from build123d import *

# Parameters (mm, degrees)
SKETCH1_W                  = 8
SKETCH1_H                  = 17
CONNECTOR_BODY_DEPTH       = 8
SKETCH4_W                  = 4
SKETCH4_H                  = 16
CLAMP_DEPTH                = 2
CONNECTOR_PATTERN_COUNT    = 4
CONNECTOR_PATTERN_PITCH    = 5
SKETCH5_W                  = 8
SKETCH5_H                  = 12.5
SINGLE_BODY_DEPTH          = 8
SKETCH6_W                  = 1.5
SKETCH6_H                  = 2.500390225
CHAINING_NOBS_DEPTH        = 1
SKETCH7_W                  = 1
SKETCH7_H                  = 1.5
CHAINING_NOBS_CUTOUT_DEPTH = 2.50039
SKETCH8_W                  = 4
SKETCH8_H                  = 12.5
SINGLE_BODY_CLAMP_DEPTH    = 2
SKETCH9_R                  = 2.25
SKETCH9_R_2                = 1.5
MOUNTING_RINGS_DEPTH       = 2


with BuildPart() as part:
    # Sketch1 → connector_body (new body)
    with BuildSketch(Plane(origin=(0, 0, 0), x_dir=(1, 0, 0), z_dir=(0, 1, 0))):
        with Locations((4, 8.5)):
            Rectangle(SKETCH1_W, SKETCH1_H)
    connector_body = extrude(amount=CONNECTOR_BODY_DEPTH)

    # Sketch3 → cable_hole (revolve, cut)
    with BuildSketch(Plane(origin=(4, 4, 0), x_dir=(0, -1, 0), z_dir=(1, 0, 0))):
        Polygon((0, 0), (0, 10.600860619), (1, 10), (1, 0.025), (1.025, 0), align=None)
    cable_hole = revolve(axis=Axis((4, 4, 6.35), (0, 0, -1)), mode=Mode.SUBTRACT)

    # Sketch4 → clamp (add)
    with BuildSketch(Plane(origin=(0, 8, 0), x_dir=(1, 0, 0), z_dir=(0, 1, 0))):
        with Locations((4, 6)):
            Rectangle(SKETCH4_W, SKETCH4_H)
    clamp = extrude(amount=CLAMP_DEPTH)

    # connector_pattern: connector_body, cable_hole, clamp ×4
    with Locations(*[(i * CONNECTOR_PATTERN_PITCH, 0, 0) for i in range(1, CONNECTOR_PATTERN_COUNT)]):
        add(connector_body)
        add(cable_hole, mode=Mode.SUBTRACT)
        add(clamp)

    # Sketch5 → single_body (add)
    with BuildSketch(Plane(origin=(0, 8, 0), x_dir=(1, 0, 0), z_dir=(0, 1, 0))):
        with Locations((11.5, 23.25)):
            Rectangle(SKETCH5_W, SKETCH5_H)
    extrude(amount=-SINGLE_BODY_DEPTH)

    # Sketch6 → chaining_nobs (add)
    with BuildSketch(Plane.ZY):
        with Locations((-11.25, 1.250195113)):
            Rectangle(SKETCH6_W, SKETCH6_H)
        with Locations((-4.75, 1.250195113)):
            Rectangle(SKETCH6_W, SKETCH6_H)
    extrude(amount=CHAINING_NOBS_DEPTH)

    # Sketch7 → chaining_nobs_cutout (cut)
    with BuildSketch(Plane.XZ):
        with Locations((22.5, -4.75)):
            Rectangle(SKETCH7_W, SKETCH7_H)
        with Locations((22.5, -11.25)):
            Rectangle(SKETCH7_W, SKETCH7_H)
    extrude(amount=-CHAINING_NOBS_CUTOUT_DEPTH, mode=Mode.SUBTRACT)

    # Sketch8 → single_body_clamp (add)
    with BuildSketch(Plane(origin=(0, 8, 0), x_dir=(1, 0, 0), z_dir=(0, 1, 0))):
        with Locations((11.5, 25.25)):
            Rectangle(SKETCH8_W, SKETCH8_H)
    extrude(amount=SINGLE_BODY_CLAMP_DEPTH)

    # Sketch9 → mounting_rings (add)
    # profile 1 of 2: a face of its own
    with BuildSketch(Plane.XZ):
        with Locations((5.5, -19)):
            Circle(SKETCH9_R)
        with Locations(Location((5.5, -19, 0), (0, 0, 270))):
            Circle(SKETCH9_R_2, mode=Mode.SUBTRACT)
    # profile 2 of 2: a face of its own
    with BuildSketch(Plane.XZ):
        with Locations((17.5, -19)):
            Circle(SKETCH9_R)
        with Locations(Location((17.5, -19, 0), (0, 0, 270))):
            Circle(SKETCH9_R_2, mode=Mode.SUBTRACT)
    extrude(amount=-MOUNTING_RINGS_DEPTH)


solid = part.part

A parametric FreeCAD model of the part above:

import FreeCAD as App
import Part
import Sketcher
from FreeCAD import Vector
Q = App.Units.Quantity

doc = App.newDocument("Part")
params = doc.addObject("Spreadsheet::Sheet", "Params")
for row, (alias, value) in enumerate([
    ("sketch1_width", "8 mm"),
    ("sketch1_height", "17 mm"),
    ("pad1_length", "8 mm"),
    ("groove_angle", "360 deg"),
    ("sketch3_width", "4 mm"),
    ("sketch3_height", "16 mm"),
    ("pad2_length", "2 mm"),
    ("linearpattern_pitch", "5 mm"),
    ("sketch4_width", "8 mm"),
    ("sketch4_height", "12.5 mm"),
    ("pad3_length", "8 mm"),
    ("sketch5_height", "1.5 mm"),
    ("pad4_length", "1 mm"),
    ("sketch6_width", "1 mm"),
    ("sketch6_height", "1.5 mm"),
    ("pocket1_length", "2.50039 mm"),
    ("sketch7_width", "4 mm"),
    ("sketch7_height", "12.5 mm"),
    ("pad5_length", "2 mm"),
    ("sketch8_diameter", "3 mm"),
    ("sketch8_diameter2", "4.5 mm"),
    ("pad6_length", "2 mm"),
], start=1):
    params.set(f"A{row}", alias)
    params.set(f"B{row}", "=" + value)
    params.setAlias(f"B{row}", alias)

body = doc.addObject("PartDesign::Body", "Body")

# Sketch on XZ plane
sketch1 = body.newObject("Sketcher::SketchObject", "Sketch")
sketch1.AttachmentSupport = (doc.getObject("XZ_Plane"), [""])
sketch1.MapMode = "FlatFace"
sketch1.addGeometry(Part.LineSegment(Vector(0, -17, 0), Vector(0, 0, 0)), False)
sketch1.addGeometry(Part.LineSegment(Vector(0, 0, 0), Vector(8, 0, 0)), False)
sketch1.addGeometry(Part.LineSegment(Vector(8, 0, 0), Vector(8, -17, 0)), False)
sketch1.addGeometry(Part.LineSegment(Vector(8, -17, 0), Vector(0, -17, 0)), False)
sketch1.addConstraint(Sketcher.Constraint("Coincident", 0, 2, 1, 1))
sketch1.addConstraint(Sketcher.Constraint("Coincident", 1, 2, 2, 1))
sketch1.addConstraint(Sketcher.Constraint("Coincident", 2, 2, 3, 1))
sketch1.addConstraint(Sketcher.Constraint("Coincident", 3, 2, 0, 1))
sketch1.addConstraint(Sketcher.Constraint("Vertical", 0))
sketch1.addConstraint(Sketcher.Constraint("Horizontal", 1))
sketch1.addConstraint(Sketcher.Constraint("Vertical", 2))
sketch1.addConstraint(Sketcher.Constraint("Horizontal", 3))
sketch1.addConstraint(Sketcher.Constraint("Coincident", 0, 2, -1, 1))
sketch1.addConstraint(Sketcher.Constraint("DistanceX", 1, 1, 1, 2, Q("8 mm")))
sketch1.addConstraint(Sketcher.Constraint("DistanceY", 0, 1, 0, 2, Q("17 mm")))
sketch1.setExpression("Constraints[9]", "Params.sketch1_width")
sketch1.setExpression("Constraints[10]", "Params.sketch1_height")
pad1 = body.newObject("PartDesign::Pad", "Pad")
pad1.Profile = sketch1
pad1.setExpression("Length", "Params.pad1_length")
pad1.Reversed = True

# Sketch on YZ plane
sketch2 = body.newObject("Sketcher::SketchObject", "Sketch001")
sketch2.AttachmentSupport = (doc.getObject("YZ_Plane"), [""])
sketch2.MapMode = "FlatFace"
sketch2.AttachmentOffset = App.Placement(Vector(0, 0, 4), App.Rotation())
sketch2.addGeometry(Part.LineSegment(Vector(4, -10.601, 0), Vector(4, 0, 0)), False)
sketch2.addGeometry(Part.LineSegment(Vector(4, 0, 0), Vector(2.975, 0, 0)), False)
sketch2.addGeometry(Part.LineSegment(Vector(2.975, 0, 0), Vector(3, -0.025, 0)), False)
sketch2.addGeometry(Part.LineSegment(Vector(3, -0.025, 0), Vector(3, -10, 0)), False)
sketch2.addGeometry(Part.LineSegment(Vector(3, -10, 0), Vector(4, -10.601, 0)), False)
sketch2.addGeometry(Part.LineSegment(Vector(4, 0, 0), Vector(4, -10.601, 0)), True)  # axis
sketch2.addConstraint(Sketcher.Constraint("Coincident", 0, 2, 1, 1))
sketch2.addConstraint(Sketcher.Constraint("Coincident", 1, 2, 2, 1))
sketch2.addConstraint(Sketcher.Constraint("Coincident", 2, 2, 3, 1))
sketch2.addConstraint(Sketcher.Constraint("Coincident", 3, 2, 4, 1))
sketch2.addConstraint(Sketcher.Constraint("Coincident", 4, 2, 0, 1))
sketch2.addConstraint(Sketcher.Constraint("Vertical", 0))
sketch2.addConstraint(Sketcher.Constraint("Horizontal", 1))
sketch2.addConstraint(Sketcher.Constraint("Vertical", 3))
sketch2.addConstraint(Sketcher.Constraint("Vertical", 5))
sketch2.addConstraint(Sketcher.Constraint("Coincident", 5, 1, 0, 2))
sketch2.addConstraint(Sketcher.Constraint("PointOnObject", 0, 2, -1))
sketch2.addConstraint(Sketcher.Constraint("Equal", 0, 5))
sketch2.addConstraint(Sketcher.Constraint("Angle", 2, Q("-45 deg")))
sketch2.addConstraint(Sketcher.Constraint("Angle", 4, Q("-31 deg")))
sketch2.addConstraint(Sketcher.Constraint("DistanceX", -1, 1, 0, 2, Q("4 mm")))
sketch2.addConstraint(Sketcher.Constraint("DistanceX", -1, 1, 2, 2, Q("3 mm")))
sketch2.addConstraint(Sketcher.Constraint("DistanceY", 3, 2, -1, 1, Q("10 mm")))
sketch2.addConstraint(Sketcher.Constraint("DistanceX", 1, 2, 1, 1, Q("1.025 mm")))
groove = body.newObject("PartDesign::Groove", "Groove")
groove.Profile = sketch2
groove.ReferenceAxis = (sketch2, ["Axis0"])
groove.setExpression("Angle", "Params.groove_angle")

# Sketch on XZ plane
sketch3 = body.newObject("Sketcher::SketchObject", "Sketch002")
sketch3.AttachmentSupport = (doc.getObject("XZ_Plane"), [""])
sketch3.MapMode = "FlatFace"
sketch3.AttachmentOffset = App.Placement(Vector(0, 0, -8), App.Rotation())
sketch3.addGeometry(Part.LineSegment(Vector(2, -14, 0), Vector(2, 2, 0)), False)
sketch3.addGeometry(Part.LineSegment(Vector(2, 2, 0), Vector(6, 2, 0)), False)
sketch3.addGeometry(Part.LineSegment(Vector(6, 2, 0), Vector(6, -14, 0)), False)
sketch3.addGeometry(Part.LineSegment(Vector(6, -14, 0), Vector(2, -14, 0)), False)
sketch3.addConstraint(Sketcher.Constraint("Coincident", 0, 2, 1, 1))
sketch3.addConstraint(Sketcher.Constraint("Coincident", 1, 2, 2, 1))
sketch3.addConstraint(Sketcher.Constraint("Coincident", 2, 2, 3, 1))
sketch3.addConstraint(Sketcher.Constraint("Coincident", 3, 2, 0, 1))
sketch3.addConstraint(Sketcher.Constraint("Vertical", 0))
sketch3.addConstraint(Sketcher.Constraint("Horizontal", 1))
sketch3.addConstraint(Sketcher.Constraint("Vertical", 2))
sketch3.addConstraint(Sketcher.Constraint("Horizontal", 3))
sketch3.addConstraint(Sketcher.Constraint("DistanceX", 1, 1, 1, 2, Q("4 mm")))
sketch3.addConstraint(Sketcher.Constraint("DistanceY", 0, 1, 0, 2, Q("16 mm")))
sketch3.addConstraint(Sketcher.Constraint("DistanceX", -1, 1, 0, 2, Q("2 mm")))
sketch3.addConstraint(Sketcher.Constraint("DistanceY", -1, 1, 0, 2, Q("2 mm")))
sketch3.setExpression("Constraints[8]", "Params.sketch3_width")
sketch3.setExpression("Constraints[9]", "Params.sketch3_height")
pad2 = body.newObject("PartDesign::Pad", "Pad001")
pad2.Profile = sketch3
pad2.setExpression("Length", "Params.pad2_length")
pad2.Reversed = True
doc.recompute()

linearpattern = body.newObject("PartDesign::LinearPattern", "LinearPattern")
linearpattern.Originals = [pad1, groove, pad2]
linearpattern.Direction = (doc.getObject("X_Axis"), [""])
linearpattern.Mode = "offset"
linearpattern.setExpression("Offset", "Params.linearpattern_pitch")
linearpattern.Occurrences = 4
body.Tip = linearpattern

# Sketch on XZ plane
sketch4 = body.newObject("Sketcher::SketchObject", "Sketch003")
sketch4.AttachmentSupport = (doc.getObject("XZ_Plane"), [""])
sketch4.MapMode = "FlatFace"
sketch4.AttachmentOffset = App.Placement(Vector(0, 0, -8), App.Rotation())
sketch4.addGeometry(Part.LineSegment(Vector(8, -30, 0), Vector(8, -17, 0)), False)
sketch4.addGeometry(Part.LineSegment(Vector(8, -17, 0), Vector(16, -17, 0)), False)
sketch4.addGeometry(Part.LineSegment(Vector(16, -17, 0), Vector(16, -30, 0)), False)
sketch4.addGeometry(Part.LineSegment(Vector(16, -30, 0), Vector(8, -30, 0)), False)
sketch4.addConstraint(Sketcher.Constraint("Coincident", 0, 2, 1, 1))
sketch4.addConstraint(Sketcher.Constraint("Coincident", 1, 2, 2, 1))
sketch4.addConstraint(Sketcher.Constraint("Coincident", 2, 2, 3, 1))
sketch4.addConstraint(Sketcher.Constraint("Coincident", 3, 2, 0, 1))
sketch4.addConstraint(Sketcher.Constraint("Vertical", 0))
sketch4.addConstraint(Sketcher.Constraint("Horizontal", 1))
sketch4.addConstraint(Sketcher.Constraint("Vertical", 2))
sketch4.addConstraint(Sketcher.Constraint("Horizontal", 3))
sketch4.addConstraint(Sketcher.Constraint("DistanceX", 1, 1, 1, 2, Q("8 mm")))
sketch4.addConstraint(Sketcher.Constraint("DistanceY", 0, 1, 0, 2, Q("12.5 mm")))
sketch4.addConstraint(Sketcher.Constraint("DistanceY", 0, 2, -1, 1, Q("17 mm")))
sketch4.addConstraint(Sketcher.Constraint("DistanceX", -1, 1, 0, 2, Q("7.5 mm")))
sketch4.setExpression("Constraints[8]", "Params.sketch4_width")
sketch4.setExpression("Constraints[9]", "Params.sketch4_height")
pad3 = body.newObject("PartDesign::Pad", "Pad002")
pad3.Profile = sketch4
pad3.setExpression("Length", "Params.pad3_length")

# Sketch on YZ plane
sketch5 = body.newObject("Sketcher::SketchObject", "Sketch004")
sketch5.AttachmentSupport = (doc.getObject("YZ_Plane"), [""])
sketch5.MapMode = "FlatFace"
sketch5.addGeometry(Part.LineSegment(Vector(2.5, -12, 0), Vector(0, -12, 0)), False)
sketch5.addGeometry(Part.LineSegment(Vector(0, -12, 0), Vector(0, -10.5, 0)), False)
sketch5.addGeometry(Part.LineSegment(Vector(0, -10.5, 0), Vector(2.5, -10.5, 0)), False)
sketch5.addGeometry(Part.LineSegment(Vector(2.5, -10.5, 0), Vector(2.5, -12, 0)), False)
sketch5.addGeometry(Part.LineSegment(Vector(2.5, -5.5, 0), Vector(0, -5.5, 0)), False)
sketch5.addGeometry(Part.LineSegment(Vector(0, -5.5, 0), Vector(0, -4, 0)), False)
sketch5.addGeometry(Part.LineSegment(Vector(0, -4, 0), Vector(2.5, -4, 0)), False)
sketch5.addGeometry(Part.LineSegment(Vector(2.5, -4, 0), Vector(2.5, -5.5, 0)), False)
sketch5.addConstraint(Sketcher.Constraint("Coincident", 0, 2, 1, 1))
sketch5.addConstraint(Sketcher.Constraint("Coincident", 1, 2, 2, 1))
sketch5.addConstraint(Sketcher.Constraint("Coincident", 2, 2, 3, 1))
sketch5.addConstraint(Sketcher.Constraint("Coincident", 3, 2, 0, 1))
sketch5.addConstraint(Sketcher.Constraint("Coincident", 4, 2, 5, 1))
sketch5.addConstraint(Sketcher.Constraint("Coincident", 5, 2, 6, 1))
sketch5.addConstraint(Sketcher.Constraint("Coincident", 6, 2, 7, 1))
sketch5.addConstraint(Sketcher.Constraint("Coincident", 7, 2, 4, 1))
sketch5.addConstraint(Sketcher.Constraint("Horizontal", 0))
sketch5.addConstraint(Sketcher.Constraint("Vertical", 1))
sketch5.addConstraint(Sketcher.Constraint("Horizontal", 2))
sketch5.addConstraint(Sketcher.Constraint("Vertical", 3))
sketch5.addConstraint(Sketcher.Constraint("Horizontal", 4))
sketch5.addConstraint(Sketcher.Constraint("Vertical", 5))
sketch5.addConstraint(Sketcher.Constraint("Horizontal", 6))
sketch5.addConstraint(Sketcher.Constraint("Vertical", 7))
sketch5.addConstraint(Sketcher.Constraint("PointOnObject", 0, 2, -2))
sketch5.addConstraint(Sketcher.Constraint("PointOnObject", 4, 2, -2))
sketch5.addConstraint(Sketcher.Constraint("Vertical", 3, 2, 6, 2))
sketch5.addConstraint(Sketcher.Constraint("Equal", 3, 5))
sketch5.addConstraint(Sketcher.Constraint("DistanceY", 1, 1, 1, 2, Q("1.5 mm")))
sketch5.addConstraint(Sketcher.Constraint("DistanceY", 0, 2, -1, 1, Q("12 mm")))
sketch5.addConstraint(Sketcher.Constraint("DistanceY", 5, 2, -1, 1, Q("4 mm")))
sketch5.addConstraint(Sketcher.Constraint("DistanceX", 0, 2, 0, 1, Q("2.50039 mm")))
sketch5.setExpression("Constraints[20]", "Params.sketch5_height")
pad4 = body.newObject("PartDesign::Pad", "Pad003")
pad4.Profile = sketch5
pad4.setExpression("Length", "Params.pad4_length")
pad4.Reversed = True

# Sketch on XZ plane
sketch6 = body.newObject("Sketcher::SketchObject", "Sketch005")
sketch6.AttachmentSupport = (doc.getObject("XZ_Plane"), [""])
sketch6.MapMode = "FlatFace"
sketch6.addGeometry(Part.LineSegment(Vector(22, -4, 0), Vector(22, -5.5, 0)), False)
sketch6.addGeometry(Part.LineSegment(Vector(22, -5.5, 0), Vector(23, -5.5, 0)), False)
sketch6.addGeometry(Part.LineSegment(Vector(23, -5.5, 0), Vector(23, -4, 0)), False)
sketch6.addGeometry(Part.LineSegment(Vector(23, -4, 0), Vector(22, -4, 0)), False)
sketch6.addGeometry(Part.LineSegment(Vector(22, -10.5, 0), Vector(22, -12, 0)), False)
sketch6.addGeometry(Part.LineSegment(Vector(22, -12, 0), Vector(23, -12, 0)), False)
sketch6.addGeometry(Part.LineSegment(Vector(23, -12, 0), Vector(23, -10.5, 0)), False)
sketch6.addGeometry(Part.LineSegment(Vector(23, -10.5, 0), Vector(22, -10.5, 0)), False)
sketch6.addConstraint(Sketcher.Constraint("Coincident", 0, 2, 1, 1))
sketch6.addConstraint(Sketcher.Constraint("Coincident", 1, 2, 2, 1))
sketch6.addConstraint(Sketcher.Constraint("Coincident", 2, 2, 3, 1))
sketch6.addConstraint(Sketcher.Constraint("Coincident", 3, 2, 0, 1))
sketch6.addConstraint(Sketcher.Constraint("Coincident", 4, 2, 5, 1))
sketch6.addConstraint(Sketcher.Constraint("Coincident", 5, 2, 6, 1))
sketch6.addConstraint(Sketcher.Constraint("Coincident", 6, 2, 7, 1))
sketch6.addConstraint(Sketcher.Constraint("Coincident", 7, 2, 4, 1))
sketch6.addConstraint(Sketcher.Constraint("Vertical", 0))
sketch6.addConstraint(Sketcher.Constraint("Horizontal", 1))
sketch6.addConstraint(Sketcher.Constraint("Vertical", 2))
sketch6.addConstraint(Sketcher.Constraint("Horizontal", 3))
sketch6.addConstraint(Sketcher.Constraint("Vertical", 4))
sketch6.addConstraint(Sketcher.Constraint("Horizontal", 5))
sketch6.addConstraint(Sketcher.Constraint("Vertical", 6))
sketch6.addConstraint(Sketcher.Constraint("Horizontal", 7))
sketch6.addConstraint(Sketcher.Constraint("Vertical", 3, 2, 4, 2))
sketch6.addConstraint(Sketcher.Constraint("Vertical", 2, 2, 5, 2))
sketch6.addConstraint(Sketcher.Constraint("Equal", 2, 4))
sketch6.addConstraint(Sketcher.Constraint("DistanceX", 1, 1, 1, 2, Q("1 mm")))
sketch6.addConstraint(Sketcher.Constraint("DistanceY", 0, 2, 0, 1, Q("1.5 mm")))
sketch6.addConstraint(Sketcher.Constraint("DistanceX", -1, 1, 0, 2, Q("22 mm")))
sketch6.addConstraint(Sketcher.Constraint("DistanceY", 2, 2, -1, 1, Q("4 mm")))
sketch6.addConstraint(Sketcher.Constraint("DistanceY", 4, 2, -1, 1, Q("12 mm")))
sketch6.setExpression("Constraints[19]", "Params.sketch6_width")
sketch6.setExpression("Constraints[20]", "Params.sketch6_height")
pocket1 = body.newObject("PartDesign::Pocket", "Pocket")
pocket1.Profile = sketch6
pocket1.setExpression("Length", "Params.pocket1_length")

# Sketch on XZ plane
sketch7 = body.newObject("Sketcher::SketchObject", "Sketch006")
sketch7.AttachmentSupport = (doc.getObject("XZ_Plane"), [""])
sketch7.MapMode = "FlatFace"
sketch7.AttachmentOffset = App.Placement(Vector(0, 0, -8), App.Rotation())
sketch7.addGeometry(Part.LineSegment(Vector(9.5, -31.5, 0), Vector(9.5, -19, 0)), False)
sketch7.addGeometry(Part.LineSegment(Vector(9.5, -19, 0), Vector(13.5, -19, 0)), False)
sketch7.addGeometry(Part.LineSegment(Vector(13.5, -19, 0), Vector(13.5, -31.5, 0)), False)
sketch7.addGeometry(Part.LineSegment(Vector(13.5, -31.5, 0), Vector(9.5, -31.5, 0)), False)
sketch7.addConstraint(Sketcher.Constraint("Coincident", 0, 2, 1, 1))
sketch7.addConstraint(Sketcher.Constraint("Coincident", 1, 2, 2, 1))
sketch7.addConstraint(Sketcher.Constraint("Coincident", 2, 2, 3, 1))
sketch7.addConstraint(Sketcher.Constraint("Coincident", 3, 2, 0, 1))
sketch7.addConstraint(Sketcher.Constraint("Vertical", 0))
sketch7.addConstraint(Sketcher.Constraint("Horizontal", 1))
sketch7.addConstraint(Sketcher.Constraint("Vertical", 2))
sketch7.addConstraint(Sketcher.Constraint("Horizontal", 3))
sketch7.addConstraint(Sketcher.Constraint("DistanceX", 1, 1, 1, 2, Q("4 mm")))
sketch7.addConstraint(Sketcher.Constraint("DistanceY", 0, 1, 0, 2, Q("12.5 mm")))
sketch7.addConstraint(Sketcher.Constraint("DistanceY", 0, 2, -1, 1, Q("19 mm")))
sketch7.addConstraint(Sketcher.Constraint("DistanceX", -1, 1, 0, 2, Q("9.5 mm")))
sketch7.setExpression("Constraints[8]", "Params.sketch7_width")
sketch7.setExpression("Constraints[9]", "Params.sketch7_height")
pad5 = body.newObject("PartDesign::Pad", "Pad004")
pad5.Profile = sketch7
pad5.setExpression("Length", "Params.pad5_length")
pad5.Reversed = True

# Sketch on XZ plane
sketch8 = body.newObject("Sketcher::SketchObject", "Sketch007")
sketch8.AttachmentSupport = (doc.getObject("XZ_Plane"), [""])
sketch8.MapMode = "FlatFace"
sketch8.addGeometry(Part.Circle(Vector(5.5, -19, 0), Vector(0, 0, 1), 2.2), False)
sketch8.addGeometry(Part.Circle(Vector(5.5, -19, 0), Vector(0, 0, 1), 1.5), False)
sketch8.addGeometry(Part.Circle(Vector(17.5, -19, 0), Vector(0, 0, 1), 2.2), False)
sketch8.addGeometry(Part.Circle(Vector(17.5, -19, 0), Vector(0, 0, 1), 1.5), False)
sketch8.addConstraint(Sketcher.Constraint("Coincident", 1, 3, 0, 3))
sketch8.addConstraint(Sketcher.Constraint("Coincident", 3, 3, 2, 3))
sketch8.addConstraint(Sketcher.Constraint("Equal", 0, 2))
sketch8.addConstraint(Sketcher.Constraint("Equal", 1, 3))
sketch8.addConstraint(Sketcher.Constraint("Horizontal", 1, 3, 2, 3))
sketch8.addConstraint(Sketcher.Constraint("Diameter", 1, Q("3 mm")))
sketch8.addConstraint(Sketcher.Constraint("Diameter", 0, Q("4.5 mm")))
sketch8.addConstraint(Sketcher.Constraint("DistanceY", 0, 3, -1, 1, Q("19 mm")))
sketch8.addConstraint(Sketcher.Constraint("DistanceX", 0, 3, 2, 3, Q("12 mm")))
sketch8.addConstraint(Sketcher.Constraint("DistanceX", -1, 1, 0, 3, Q("5.5 mm")))
sketch8.setExpression("Constraints[5]", "Params.sketch8_diameter")
sketch8.setExpression("Constraints[6]", "Params.sketch8_diameter2")
pad6 = body.newObject("PartDesign::Pad", "Pad005")
pad6.Profile = sketch8
pad6.setExpression("Length", "Params.pad6_length")
pad6.Reversed = True

doc.recompute()
